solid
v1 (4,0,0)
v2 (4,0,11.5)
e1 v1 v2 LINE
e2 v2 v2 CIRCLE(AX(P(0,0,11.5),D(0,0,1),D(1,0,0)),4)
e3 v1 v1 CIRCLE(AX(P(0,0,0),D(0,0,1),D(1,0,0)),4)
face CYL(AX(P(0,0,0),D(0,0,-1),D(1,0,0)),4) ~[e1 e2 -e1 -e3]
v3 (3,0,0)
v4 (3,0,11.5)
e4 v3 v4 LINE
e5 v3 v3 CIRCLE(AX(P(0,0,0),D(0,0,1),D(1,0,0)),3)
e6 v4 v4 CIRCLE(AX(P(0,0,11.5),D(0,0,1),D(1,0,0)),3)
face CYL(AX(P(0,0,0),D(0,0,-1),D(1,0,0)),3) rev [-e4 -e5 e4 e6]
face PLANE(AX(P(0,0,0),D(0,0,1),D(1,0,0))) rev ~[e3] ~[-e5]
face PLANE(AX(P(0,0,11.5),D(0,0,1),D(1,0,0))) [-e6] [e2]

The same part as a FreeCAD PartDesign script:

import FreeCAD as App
import Part
import Sketcher

V = App.Vector

doc = App.newDocument("Part")
params = doc.addObject("Spreadsheet::Sheet", "Params")
for row, (alias, value) in enumerate([
    ("sketch1_diameter", "8 mm"),
    ("sketch1_diameter2", "6 mm"),
    ("pad1_length", "11.5 mm"),
], start=1):
    params.set(f"A{row}", alias)
    params.set(f"B{row}", "=" + value)
    params.setAlias(f"B{row}", alias)

body = doc.addObject("PartDesign::Body", "Body")

# Sketch on XY plane
sketch1 = body.newObject("Sketcher::SketchObject", "Sketch")
sketch1.AttachmentSupport = (doc.getObject("XY_Plane"), [""])
sketch1.MapMode = "FlatFace"
sketch1.addGeometry(Part.Circle(V(0, 0, 0), V(0, 0, 1), 4), False)
sketch1.addGeometry(Part.Circle(V(0, 0, 0), V(0, 0, 1), 3), False)
sketch1.addConstraint(Sketcher.Constraint("Coincident", 0, 3, -1, 1))
sketch1.addConstraint(Sketcher.Constraint("Coincident", 1, 3, -1, 1))
sketch1.addConstraint(Sketcher.Constraint("Diameter", 0, 8.0))
sketch1.addConstraint(Sketcher.Constraint("Diameter", 1, 6.0))
sketch1.setExpression("Constraints[2]", "Params.sketch1_diameter")
sketch1.setExpression("Constraints[3]", "Params.sketch1_diameter2")
pad1 = body.newObject("PartDesign::Pad", "Pad")
pad1.Profile = sketch1
pad1.setExpression("Length", "Params.pad1_length")

doc.recompute()
